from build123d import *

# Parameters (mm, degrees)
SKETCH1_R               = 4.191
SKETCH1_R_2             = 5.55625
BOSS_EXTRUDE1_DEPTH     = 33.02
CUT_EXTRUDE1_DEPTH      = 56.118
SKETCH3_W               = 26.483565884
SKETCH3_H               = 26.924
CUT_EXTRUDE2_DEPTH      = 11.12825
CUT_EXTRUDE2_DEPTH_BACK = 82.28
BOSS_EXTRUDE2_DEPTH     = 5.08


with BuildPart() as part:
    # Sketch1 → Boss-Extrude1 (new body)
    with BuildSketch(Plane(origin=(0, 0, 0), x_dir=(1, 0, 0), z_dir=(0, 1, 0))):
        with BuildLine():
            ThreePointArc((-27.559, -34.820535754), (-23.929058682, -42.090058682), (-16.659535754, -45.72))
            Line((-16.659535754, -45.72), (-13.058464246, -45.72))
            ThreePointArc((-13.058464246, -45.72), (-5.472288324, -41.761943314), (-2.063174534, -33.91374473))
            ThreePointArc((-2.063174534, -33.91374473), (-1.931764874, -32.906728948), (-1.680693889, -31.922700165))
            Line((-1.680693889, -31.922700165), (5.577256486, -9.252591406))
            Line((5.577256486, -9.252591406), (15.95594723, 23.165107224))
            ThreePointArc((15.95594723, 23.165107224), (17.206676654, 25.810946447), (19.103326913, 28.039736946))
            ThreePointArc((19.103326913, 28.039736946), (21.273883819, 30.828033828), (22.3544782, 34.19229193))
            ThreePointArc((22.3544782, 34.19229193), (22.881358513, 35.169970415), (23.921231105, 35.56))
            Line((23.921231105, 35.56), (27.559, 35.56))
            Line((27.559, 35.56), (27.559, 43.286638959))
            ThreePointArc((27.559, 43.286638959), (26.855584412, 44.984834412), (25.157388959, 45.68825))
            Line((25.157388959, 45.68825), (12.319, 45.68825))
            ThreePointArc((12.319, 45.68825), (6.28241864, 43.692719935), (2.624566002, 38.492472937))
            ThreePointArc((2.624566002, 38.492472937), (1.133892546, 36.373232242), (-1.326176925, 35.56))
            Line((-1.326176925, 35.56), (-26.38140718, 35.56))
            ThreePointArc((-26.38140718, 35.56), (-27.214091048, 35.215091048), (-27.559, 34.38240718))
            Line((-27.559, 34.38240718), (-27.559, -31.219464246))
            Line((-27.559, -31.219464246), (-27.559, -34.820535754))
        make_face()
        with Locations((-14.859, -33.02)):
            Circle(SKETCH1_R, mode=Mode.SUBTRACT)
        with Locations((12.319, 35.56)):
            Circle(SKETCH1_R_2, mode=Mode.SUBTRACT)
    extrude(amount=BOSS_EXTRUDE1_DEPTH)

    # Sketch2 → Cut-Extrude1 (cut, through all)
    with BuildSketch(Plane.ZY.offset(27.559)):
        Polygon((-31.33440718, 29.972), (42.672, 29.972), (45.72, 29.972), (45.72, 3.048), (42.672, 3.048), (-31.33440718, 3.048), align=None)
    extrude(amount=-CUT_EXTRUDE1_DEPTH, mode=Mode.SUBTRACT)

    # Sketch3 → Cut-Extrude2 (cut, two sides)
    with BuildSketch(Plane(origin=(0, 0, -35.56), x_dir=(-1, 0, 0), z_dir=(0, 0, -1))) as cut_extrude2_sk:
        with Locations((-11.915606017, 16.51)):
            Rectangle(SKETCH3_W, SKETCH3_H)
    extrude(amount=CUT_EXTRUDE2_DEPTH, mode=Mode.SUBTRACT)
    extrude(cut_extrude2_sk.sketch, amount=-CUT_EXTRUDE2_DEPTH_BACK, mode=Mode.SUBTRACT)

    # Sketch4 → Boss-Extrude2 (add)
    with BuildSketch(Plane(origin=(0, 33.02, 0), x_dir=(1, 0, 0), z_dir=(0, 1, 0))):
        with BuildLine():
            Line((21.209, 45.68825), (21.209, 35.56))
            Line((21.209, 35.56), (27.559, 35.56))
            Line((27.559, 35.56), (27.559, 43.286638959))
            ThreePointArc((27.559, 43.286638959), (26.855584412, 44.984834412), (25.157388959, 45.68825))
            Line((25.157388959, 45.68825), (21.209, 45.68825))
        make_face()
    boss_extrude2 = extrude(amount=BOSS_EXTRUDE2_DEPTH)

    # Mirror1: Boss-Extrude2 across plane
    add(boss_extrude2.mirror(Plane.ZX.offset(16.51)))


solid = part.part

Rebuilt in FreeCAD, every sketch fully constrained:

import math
import FreeCAD as App
import Part
import Sketcher
Q = App.Units.Quantity

doc = App.newDocument("Part")
body = doc.addObject("PartDesign::Body", "Body")

sketch1 = body.newObject("Sketcher::SketchObject", "Sketch")
sketch1.AttachmentSupport = (doc.getObject("XZ_Plane"), [""])
sketch1.MapMode = "FlatFace"
sketch1.addGeometry([
    Part.ArcOfCircle(Part.Circle(App.Vector(-14.9, 33, 0), App.Vector(0, 0, 1), 12.8), math.radians(98), math.radians(172)),
    Part.LineSegment(App.Vector(-16.7, 45.7, 0), App.Vector(-13.1, 45.7, 0)),
    Part.ArcOfCircle(Part.Circle(App.Vector(-14.9, 33, 0), App.Vector(0, 0, 1), 12.8), math.radians(4), math.radians(82)),
    Part.ArcOfCircle(Part.Circle(App.Vector(6.4, 34.5, 0), App.Vector(0, 0, 1), 8.5), math.radians(-176), math.radians(-162.25)),
    Part.LineSegment(App.Vector(-1.7, 31.9, 0), App.Vector(5.6, 9.3, 0)),
    Part.LineSegment(App.Vector(5.6, 9.3, 0), App.Vector(16, -23.2, 0)),
    Part.ArcOfCircle(Part.Circle(App.Vector(26.6, -19.8, 0), App.Vector(0, 0, 1), 11.1), math.radians(-162), math.radians(-132)),
    Part.ArcOfCircle(Part.Circle(App.Vector(12.3, -35.6, 0), App.Vector(0, 0, 1), 10.1), math.radians(8), math.radians(48)),
    Part.ArcOfCircle(Part.Circle(App.Vector(23.9, -34, 0), App.Vector(0, 0, 1), 1.6), math.radians(-172), math.radians(-90)),
    Part.LineSegment(App.Vector(23.9, -35.6, 0), App.Vector(27.6, -35.6, 0)),
    Part.LineSegment(App.Vector(27.6, -35.6, 0), App.Vector(27.6, -43.3, 0)),
    Part.ArcOfCircle(Part.Circle(App.Vector(25.2, -43.3, 0), App.Vector(0, 0, 1), 2.4), math.radians(-90), math.radians(0)),
    Part.LineSegment(App.Vector(25.2, -45.7, 0), App.Vector(12.3, -45.7, 0)),
    Part.ArcOfCircle(Part.Circle(App.Vector(12.3, -35.6, 0), App.Vector(0, 0, 1), 10.1), math.radians(-163), math.radians(-90)),
    Part.ArcOfCircle(Part.Circle(App.Vector(-1.3, -39.7, 0), App.Vector(0, 0, 1), 4.1), math.radians(17), math.radians(90)),
    Part.LineSegment(App.Vector(-1.3, -35.6, 0), App.Vector(-26.4, -35.6, 0)),
    Part.ArcOfCircle(Part.Circle(App.Vector(-26.4, -34.4, 0), App.Vector(0, 0, 1), 1.2), math.radians(-180), math.radians(-90)),
    Part.LineSegment(App.Vector(-27.6, -34.4, 0), App.Vector(-27.6, 34.8, 0)),
    Part.Circle(App.Vector(-14.9, 33, 0), App.Vector(0, 0, 1), 4.2),
    Part.Circle(App.Vector(12.3, -35.6, 0), App.Vector(0, 0, 1), 5.6),
], False)
sketch1.addConstraint([
    Sketcher.Constraint("Coincident", 0, 1, 1, 1),
    Sketcher.Constraint("Coincident", 1, 2, 2, 2),
    Sketcher.Constraint("Tangent", 2, 1, 3, 1),
    Sketcher.Constraint("Tangent", 3, 2, 4, 1),
    Sketcher.Constraint("Coincident", 4, 2, 5, 1),
    Sketcher.Constraint("Tangent", 5, 2, 6, 1),
    Sketcher.Constraint("Tangent", 6, 2, 7, 2),
    Sketcher.Constraint("Tangent", 7, 1, 8, 1),
    Sketcher.Constraint("Tangent", 8, 2, 9, 1),
    Sketcher.Constraint("Coincident", 9, 2, 10, 1),
    Sketcher.Constraint("Tangent", 10, 2, 11, 2),
    Sketcher.Constraint("Tangent", 11, 1, 12, 1),
    Sketcher.Constraint("Tangent", 12, 2, 13, 2),
    Sketcher.Constraint("Tangent", 13, 1, 14, 1),
    Sketcher.Constraint("Tangent", 14, 2, 15, 1),
    Sketcher.Constraint("Tangent", 15, 2, 16, 2),
    Sketcher.Constraint("Tangent", 16, 1, 17, 1),
    Sketcher.Constraint("Coincident", 17, 2, 0, 2),
    Sketcher.Constraint("Horizontal", 1),
    Sketcher.Constraint("Horizontal", 9),
    Sketcher.Constraint("Vertical", 10),
    Sketcher.Constraint("Horizontal", 12),
    Sketcher.Constraint("Horizontal", 15),
    Sketcher.Constraint("Vertical", 17),
    Sketcher.Constraint("Coincident", 2, 3, 0, 3),
    Sketcher.Constraint("Coincident", 13, 3, 7, 3),
    Sketcher.Constraint("Coincident", 18, 3, 0, 3),
    Sketcher.Constraint("Coincident", 19, 3, 7, 3),
    Sketcher.Constraint("Equal", 0, 2),
    Sketcher.Constraint("Equal", 7, 13),
    Sketcher.Constraint("Parallel", 4, 5),
    Sketcher.Constraint("Horizontal", 19, 3, 8, 2),
    Sketcher.Constraint("Horizontal", 9, 2, 14, 2),
    Sketcher.Constraint("Diameter", 18, Q("0.33 in")),
    Sketcher.Constraint("Diameter", 19, Q("0.4375 in")),
    Sketcher.Constraint("Radius", 0, Q("0.505 in")),
    Sketcher.Constraint("DistanceY", -1, 1, 0, 3, Q("1.3 in")),
    Sketcher.Constraint("DistanceY", 7, 3, -1, 1, Q("1.4 in")),
    Sketcher.Constraint("DistanceY", -1, 1, 0, 1, Q("1.8 in")),
    Sketcher.Constraint("DistanceX", 17, 2, 2, 3, Q("0.5 in")),
    Sketcher.Constraint("DistanceX", 0, 3, 7, 3, Q("1.07 in")),
    Sketcher.Constraint("DistanceX", 0, 3, -1, 1, Q("0.585 in")),
    Sketcher.Constraint("DistanceX", -1, 1, 9, 2, Q("1.085 in")),
    Sketcher.Constraint("Radius", 7, 10.12825),
    Sketcher.Constraint("Radius", 11, 2.401611),
    Sketcher.Constraint("Radius", 3, 8.464143),
    Sketcher.Constraint("Radius", 6, 11.139617),
    Sketcher.Constraint("Radius", 8, 1.581237),
    Sketcher.Constraint("Radius", 14, 4.127535),
    Sketcher.Constraint("Radius", 16, 1.177593),
    Sketcher.Constraint("DistanceY", -1, 1, 3, 3, 34.503499),
    Sketcher.Constraint("DistanceY", -1, 1, 3, 2, 31.9227),
    Sketcher.Constraint("DistanceY", -1, 1, 4, 2, 9.252591),
])
pad1 = body.newObject("PartDesign::Pad", "Pad")
pad1.Profile = sketch1
pad1.Length = Q("1.3 in")
pad1.Reversed = True

sketch2 = body.newObject("Sketcher::SketchObject", "Sketch001")
sketch2.AttachmentSupport = (doc.getObject("YZ_Plane"), [""])
sketch2.MapMode = "FlatFace"
sketch2.AttachmentOffset = App.Placement(App.Vector(0, 0, -1.085 * 25.4), App.Rotation())
sketch2.addGeometry([
    Part.LineSegment(App.Vector(30, 46, 0), App.Vector(30, -31, 0)),
    Part.LineSegment(App.Vector(30, -31, 0), App.Vector(3, -31, 0)),
    Part.LineSegment(App.Vector(3, -31, 0), App.Vector(3, 46, 0)),
    Part.LineSegment(App.Vector(3, 46, 0), App.Vector(30, 46, 0)),
], False)
sketch2.addConstraint([
    Sketcher.Constraint("Coincident", 0, 2, 1, 1),
    Sketcher.Constraint("Coincident", 1, 2, 2, 1),
    Sketcher.Constraint("Coincident", 2, 2, 3, 1),
    Sketcher.Constraint("Coincident", 3, 2, 0, 1),
    Sketcher.Constraint("Vertical", 0),
    Sketcher.Constraint("Horizontal", 1),
    Sketcher.Constraint("Vertical", 2),
    Sketcher.Constraint("Horizontal", 3),
    Sketcher.Constraint("DistanceX", 1, 2, 1, 1, Q("1.06 in")),
    Sketcher.Constraint("DistanceY", -1, 1, 2, 2, Q("1.8 in")),
    Sketcher.Constraint("DistanceX", -1, 1, 0, 2, Q("1.18 in")),
    Sketcher.Constraint("DistanceY", 0, 2, 0, 1, 77.054407),
])
pocket1 = body.newObject("PartDesign::Pocket", "Pocket")
pocket1.Profile = sketch2
pocket1.Type = "ThroughAll"
pocket1.Reversed = True

sketch3 = body.newObject("Sketcher::SketchObject", "Sketch002")
sketch3.AttachmentSupport = (doc.getObject("XY_Plane"), [""])
sketch3.MapMode = "FlatFace"
sketch3.AttachmentOffset = App.Placement(App.Vector(0, 0, -1.4 * 25.4), App.Rotation())
sketch3.addGeometry([
    Part.LineSegment(App.Vector(25, 30, 0), App.Vector(25, 3, 0)),
    Part.LineSegment(App.Vector(25, 3, 0), App.Vector(-1, 3, 0)),
    Part.LineSegment(App.Vector(-1, 3, 0), App.Vector(-1, 30, 0)),
    Part.LineSegment(App.Vector(-1, 30, 0), App.Vector(25, 30, 0)),
], False)
sketch3.addConstraint([
    Sketcher.Constraint("Coincident", 0, 2, 1, 1),
    Sketcher.Constraint("Coincident", 1, 2, 2, 1),
    Sketcher.Constraint("Coincident", 2, 2, 3, 1),
    Sketcher.Constraint("Coincident", 3, 2, 0, 1),
    Sketcher.Constraint("Vertical", 0),
    Sketcher.Constraint("Horizontal", 1),
    Sketcher.Constraint("Vertical", 2),
    Sketcher.Constraint("Horizontal", 3),
    Sketcher.Constraint("DistanceY", 0, 2, 0, 1, Q("1.06 in")),
    Sketcher.Constraint("DistanceY", -1, 1, 0, 2, Q("0.12 in")),
    Sketcher.Constraint("DistanceX", 1, 2, 1, 1, 26.483566),
    Sketcher.Constraint("DistanceX", -1, 1, 0, 2, 25.157389),
])
pocket2 = body.newObject("PartDesign::Pocket", "Pocket001")
pocket2.Profile = sketch3
pocket2.Type = "ThroughAll"
pocket2.Midplane = True

sketch4 = body.newObject("Sketcher::SketchObject", "Sketch003")
sketch4.AttachmentSupport = (doc.getObject("XZ_Plane"), [""])
sketch4.MapMode = "FlatFace"
sketch4.AttachmentOffset = App.Placement(App.Vector(0, 0, -1.3 * 25.4), App.Rotation())
sketch4.addGeometry([
    Part.LineSegment(App.Vector(21.2, -45.7, 0), App.Vector(21.2, -35.6, 0)),
    Part.LineSegment(App.Vector(21.2, -35.6, 0), App.Vector(27.6, -35.6, 0)),
    Part.LineSegment(App.Vector(27.6, -35.6, 0), App.Vector(27.6, -43.3, 0)),
    Part.ArcOfCircle(Part.Circle(App.Vector(25.2, -43.3, 0), App.Vector(0, 0, 1), 2.4), math.radians(-90), math.radians(0)),
    Part.LineSegment(App.Vector(25.2, -45.7, 0), App.Vector(21.2, -45.7, 0)),
], False)
sketch4.addConstraint([
    Sketcher.Constraint("Coincident", 0, 2, 1, 1),
    Sketcher.Constraint("Coincident", 1, 2, 2, 1),
    Sketcher.Constraint("Tangent", 2, 2, 3, 2),
    Sketcher.Constraint("Tangent", 3, 1, 4, 1),
    Sketcher.Constraint("Coincident", 4, 2, 0, 1),
    Sketcher.Constraint("Vertical", 0),
    Sketcher.Constraint("Horizontal", 1),
    Sketcher.Constraint("Vertical", 2),
    Sketcher.Constraint("Horizontal", 4),
    Sketcher.Constraint("DistanceX", 1, 1, 1, 2, Q("0.25 in")),
    Sketcher.Constraint("DistanceY", 0, 2, -1, 1, Q("1.4 in")),
    Sketcher.Constraint("DistanceX", -1, 1, 0, 2, Q("0.835 in")),
    Sketcher.Constraint("Radius", 3, 2.401611),
    Sketcher.Constraint("DistanceY", 0, 1, 0, 2, 10.12825),
])
pad2 = body.newObject("PartDesign::Pad", "Pad001")
pad2.Profile = sketch4
pad2.Length = Q("0.2 in")
pad2.Reversed = True
doc.recompute()

datumplane = body.newObject("PartDesign::Plane", "DatumPlane")
datumplane.AttachmentSupport = (doc.getObject("XZ_Plane"), [""])
datumplane.MapMode = "FlatFace"
datumplane.AttachmentOffset = App.Placement(App.Vector(0, 0, -0.65 * 25.4), App.Rotation())
mirrored = body.newObject("PartDesign::Mirrored", "Mirrored")
mirrored.Originals = [pad2]
mirrored.MirrorPlane = (datumplane, [""])
body.Tip = mirrored

doc.recompute()
